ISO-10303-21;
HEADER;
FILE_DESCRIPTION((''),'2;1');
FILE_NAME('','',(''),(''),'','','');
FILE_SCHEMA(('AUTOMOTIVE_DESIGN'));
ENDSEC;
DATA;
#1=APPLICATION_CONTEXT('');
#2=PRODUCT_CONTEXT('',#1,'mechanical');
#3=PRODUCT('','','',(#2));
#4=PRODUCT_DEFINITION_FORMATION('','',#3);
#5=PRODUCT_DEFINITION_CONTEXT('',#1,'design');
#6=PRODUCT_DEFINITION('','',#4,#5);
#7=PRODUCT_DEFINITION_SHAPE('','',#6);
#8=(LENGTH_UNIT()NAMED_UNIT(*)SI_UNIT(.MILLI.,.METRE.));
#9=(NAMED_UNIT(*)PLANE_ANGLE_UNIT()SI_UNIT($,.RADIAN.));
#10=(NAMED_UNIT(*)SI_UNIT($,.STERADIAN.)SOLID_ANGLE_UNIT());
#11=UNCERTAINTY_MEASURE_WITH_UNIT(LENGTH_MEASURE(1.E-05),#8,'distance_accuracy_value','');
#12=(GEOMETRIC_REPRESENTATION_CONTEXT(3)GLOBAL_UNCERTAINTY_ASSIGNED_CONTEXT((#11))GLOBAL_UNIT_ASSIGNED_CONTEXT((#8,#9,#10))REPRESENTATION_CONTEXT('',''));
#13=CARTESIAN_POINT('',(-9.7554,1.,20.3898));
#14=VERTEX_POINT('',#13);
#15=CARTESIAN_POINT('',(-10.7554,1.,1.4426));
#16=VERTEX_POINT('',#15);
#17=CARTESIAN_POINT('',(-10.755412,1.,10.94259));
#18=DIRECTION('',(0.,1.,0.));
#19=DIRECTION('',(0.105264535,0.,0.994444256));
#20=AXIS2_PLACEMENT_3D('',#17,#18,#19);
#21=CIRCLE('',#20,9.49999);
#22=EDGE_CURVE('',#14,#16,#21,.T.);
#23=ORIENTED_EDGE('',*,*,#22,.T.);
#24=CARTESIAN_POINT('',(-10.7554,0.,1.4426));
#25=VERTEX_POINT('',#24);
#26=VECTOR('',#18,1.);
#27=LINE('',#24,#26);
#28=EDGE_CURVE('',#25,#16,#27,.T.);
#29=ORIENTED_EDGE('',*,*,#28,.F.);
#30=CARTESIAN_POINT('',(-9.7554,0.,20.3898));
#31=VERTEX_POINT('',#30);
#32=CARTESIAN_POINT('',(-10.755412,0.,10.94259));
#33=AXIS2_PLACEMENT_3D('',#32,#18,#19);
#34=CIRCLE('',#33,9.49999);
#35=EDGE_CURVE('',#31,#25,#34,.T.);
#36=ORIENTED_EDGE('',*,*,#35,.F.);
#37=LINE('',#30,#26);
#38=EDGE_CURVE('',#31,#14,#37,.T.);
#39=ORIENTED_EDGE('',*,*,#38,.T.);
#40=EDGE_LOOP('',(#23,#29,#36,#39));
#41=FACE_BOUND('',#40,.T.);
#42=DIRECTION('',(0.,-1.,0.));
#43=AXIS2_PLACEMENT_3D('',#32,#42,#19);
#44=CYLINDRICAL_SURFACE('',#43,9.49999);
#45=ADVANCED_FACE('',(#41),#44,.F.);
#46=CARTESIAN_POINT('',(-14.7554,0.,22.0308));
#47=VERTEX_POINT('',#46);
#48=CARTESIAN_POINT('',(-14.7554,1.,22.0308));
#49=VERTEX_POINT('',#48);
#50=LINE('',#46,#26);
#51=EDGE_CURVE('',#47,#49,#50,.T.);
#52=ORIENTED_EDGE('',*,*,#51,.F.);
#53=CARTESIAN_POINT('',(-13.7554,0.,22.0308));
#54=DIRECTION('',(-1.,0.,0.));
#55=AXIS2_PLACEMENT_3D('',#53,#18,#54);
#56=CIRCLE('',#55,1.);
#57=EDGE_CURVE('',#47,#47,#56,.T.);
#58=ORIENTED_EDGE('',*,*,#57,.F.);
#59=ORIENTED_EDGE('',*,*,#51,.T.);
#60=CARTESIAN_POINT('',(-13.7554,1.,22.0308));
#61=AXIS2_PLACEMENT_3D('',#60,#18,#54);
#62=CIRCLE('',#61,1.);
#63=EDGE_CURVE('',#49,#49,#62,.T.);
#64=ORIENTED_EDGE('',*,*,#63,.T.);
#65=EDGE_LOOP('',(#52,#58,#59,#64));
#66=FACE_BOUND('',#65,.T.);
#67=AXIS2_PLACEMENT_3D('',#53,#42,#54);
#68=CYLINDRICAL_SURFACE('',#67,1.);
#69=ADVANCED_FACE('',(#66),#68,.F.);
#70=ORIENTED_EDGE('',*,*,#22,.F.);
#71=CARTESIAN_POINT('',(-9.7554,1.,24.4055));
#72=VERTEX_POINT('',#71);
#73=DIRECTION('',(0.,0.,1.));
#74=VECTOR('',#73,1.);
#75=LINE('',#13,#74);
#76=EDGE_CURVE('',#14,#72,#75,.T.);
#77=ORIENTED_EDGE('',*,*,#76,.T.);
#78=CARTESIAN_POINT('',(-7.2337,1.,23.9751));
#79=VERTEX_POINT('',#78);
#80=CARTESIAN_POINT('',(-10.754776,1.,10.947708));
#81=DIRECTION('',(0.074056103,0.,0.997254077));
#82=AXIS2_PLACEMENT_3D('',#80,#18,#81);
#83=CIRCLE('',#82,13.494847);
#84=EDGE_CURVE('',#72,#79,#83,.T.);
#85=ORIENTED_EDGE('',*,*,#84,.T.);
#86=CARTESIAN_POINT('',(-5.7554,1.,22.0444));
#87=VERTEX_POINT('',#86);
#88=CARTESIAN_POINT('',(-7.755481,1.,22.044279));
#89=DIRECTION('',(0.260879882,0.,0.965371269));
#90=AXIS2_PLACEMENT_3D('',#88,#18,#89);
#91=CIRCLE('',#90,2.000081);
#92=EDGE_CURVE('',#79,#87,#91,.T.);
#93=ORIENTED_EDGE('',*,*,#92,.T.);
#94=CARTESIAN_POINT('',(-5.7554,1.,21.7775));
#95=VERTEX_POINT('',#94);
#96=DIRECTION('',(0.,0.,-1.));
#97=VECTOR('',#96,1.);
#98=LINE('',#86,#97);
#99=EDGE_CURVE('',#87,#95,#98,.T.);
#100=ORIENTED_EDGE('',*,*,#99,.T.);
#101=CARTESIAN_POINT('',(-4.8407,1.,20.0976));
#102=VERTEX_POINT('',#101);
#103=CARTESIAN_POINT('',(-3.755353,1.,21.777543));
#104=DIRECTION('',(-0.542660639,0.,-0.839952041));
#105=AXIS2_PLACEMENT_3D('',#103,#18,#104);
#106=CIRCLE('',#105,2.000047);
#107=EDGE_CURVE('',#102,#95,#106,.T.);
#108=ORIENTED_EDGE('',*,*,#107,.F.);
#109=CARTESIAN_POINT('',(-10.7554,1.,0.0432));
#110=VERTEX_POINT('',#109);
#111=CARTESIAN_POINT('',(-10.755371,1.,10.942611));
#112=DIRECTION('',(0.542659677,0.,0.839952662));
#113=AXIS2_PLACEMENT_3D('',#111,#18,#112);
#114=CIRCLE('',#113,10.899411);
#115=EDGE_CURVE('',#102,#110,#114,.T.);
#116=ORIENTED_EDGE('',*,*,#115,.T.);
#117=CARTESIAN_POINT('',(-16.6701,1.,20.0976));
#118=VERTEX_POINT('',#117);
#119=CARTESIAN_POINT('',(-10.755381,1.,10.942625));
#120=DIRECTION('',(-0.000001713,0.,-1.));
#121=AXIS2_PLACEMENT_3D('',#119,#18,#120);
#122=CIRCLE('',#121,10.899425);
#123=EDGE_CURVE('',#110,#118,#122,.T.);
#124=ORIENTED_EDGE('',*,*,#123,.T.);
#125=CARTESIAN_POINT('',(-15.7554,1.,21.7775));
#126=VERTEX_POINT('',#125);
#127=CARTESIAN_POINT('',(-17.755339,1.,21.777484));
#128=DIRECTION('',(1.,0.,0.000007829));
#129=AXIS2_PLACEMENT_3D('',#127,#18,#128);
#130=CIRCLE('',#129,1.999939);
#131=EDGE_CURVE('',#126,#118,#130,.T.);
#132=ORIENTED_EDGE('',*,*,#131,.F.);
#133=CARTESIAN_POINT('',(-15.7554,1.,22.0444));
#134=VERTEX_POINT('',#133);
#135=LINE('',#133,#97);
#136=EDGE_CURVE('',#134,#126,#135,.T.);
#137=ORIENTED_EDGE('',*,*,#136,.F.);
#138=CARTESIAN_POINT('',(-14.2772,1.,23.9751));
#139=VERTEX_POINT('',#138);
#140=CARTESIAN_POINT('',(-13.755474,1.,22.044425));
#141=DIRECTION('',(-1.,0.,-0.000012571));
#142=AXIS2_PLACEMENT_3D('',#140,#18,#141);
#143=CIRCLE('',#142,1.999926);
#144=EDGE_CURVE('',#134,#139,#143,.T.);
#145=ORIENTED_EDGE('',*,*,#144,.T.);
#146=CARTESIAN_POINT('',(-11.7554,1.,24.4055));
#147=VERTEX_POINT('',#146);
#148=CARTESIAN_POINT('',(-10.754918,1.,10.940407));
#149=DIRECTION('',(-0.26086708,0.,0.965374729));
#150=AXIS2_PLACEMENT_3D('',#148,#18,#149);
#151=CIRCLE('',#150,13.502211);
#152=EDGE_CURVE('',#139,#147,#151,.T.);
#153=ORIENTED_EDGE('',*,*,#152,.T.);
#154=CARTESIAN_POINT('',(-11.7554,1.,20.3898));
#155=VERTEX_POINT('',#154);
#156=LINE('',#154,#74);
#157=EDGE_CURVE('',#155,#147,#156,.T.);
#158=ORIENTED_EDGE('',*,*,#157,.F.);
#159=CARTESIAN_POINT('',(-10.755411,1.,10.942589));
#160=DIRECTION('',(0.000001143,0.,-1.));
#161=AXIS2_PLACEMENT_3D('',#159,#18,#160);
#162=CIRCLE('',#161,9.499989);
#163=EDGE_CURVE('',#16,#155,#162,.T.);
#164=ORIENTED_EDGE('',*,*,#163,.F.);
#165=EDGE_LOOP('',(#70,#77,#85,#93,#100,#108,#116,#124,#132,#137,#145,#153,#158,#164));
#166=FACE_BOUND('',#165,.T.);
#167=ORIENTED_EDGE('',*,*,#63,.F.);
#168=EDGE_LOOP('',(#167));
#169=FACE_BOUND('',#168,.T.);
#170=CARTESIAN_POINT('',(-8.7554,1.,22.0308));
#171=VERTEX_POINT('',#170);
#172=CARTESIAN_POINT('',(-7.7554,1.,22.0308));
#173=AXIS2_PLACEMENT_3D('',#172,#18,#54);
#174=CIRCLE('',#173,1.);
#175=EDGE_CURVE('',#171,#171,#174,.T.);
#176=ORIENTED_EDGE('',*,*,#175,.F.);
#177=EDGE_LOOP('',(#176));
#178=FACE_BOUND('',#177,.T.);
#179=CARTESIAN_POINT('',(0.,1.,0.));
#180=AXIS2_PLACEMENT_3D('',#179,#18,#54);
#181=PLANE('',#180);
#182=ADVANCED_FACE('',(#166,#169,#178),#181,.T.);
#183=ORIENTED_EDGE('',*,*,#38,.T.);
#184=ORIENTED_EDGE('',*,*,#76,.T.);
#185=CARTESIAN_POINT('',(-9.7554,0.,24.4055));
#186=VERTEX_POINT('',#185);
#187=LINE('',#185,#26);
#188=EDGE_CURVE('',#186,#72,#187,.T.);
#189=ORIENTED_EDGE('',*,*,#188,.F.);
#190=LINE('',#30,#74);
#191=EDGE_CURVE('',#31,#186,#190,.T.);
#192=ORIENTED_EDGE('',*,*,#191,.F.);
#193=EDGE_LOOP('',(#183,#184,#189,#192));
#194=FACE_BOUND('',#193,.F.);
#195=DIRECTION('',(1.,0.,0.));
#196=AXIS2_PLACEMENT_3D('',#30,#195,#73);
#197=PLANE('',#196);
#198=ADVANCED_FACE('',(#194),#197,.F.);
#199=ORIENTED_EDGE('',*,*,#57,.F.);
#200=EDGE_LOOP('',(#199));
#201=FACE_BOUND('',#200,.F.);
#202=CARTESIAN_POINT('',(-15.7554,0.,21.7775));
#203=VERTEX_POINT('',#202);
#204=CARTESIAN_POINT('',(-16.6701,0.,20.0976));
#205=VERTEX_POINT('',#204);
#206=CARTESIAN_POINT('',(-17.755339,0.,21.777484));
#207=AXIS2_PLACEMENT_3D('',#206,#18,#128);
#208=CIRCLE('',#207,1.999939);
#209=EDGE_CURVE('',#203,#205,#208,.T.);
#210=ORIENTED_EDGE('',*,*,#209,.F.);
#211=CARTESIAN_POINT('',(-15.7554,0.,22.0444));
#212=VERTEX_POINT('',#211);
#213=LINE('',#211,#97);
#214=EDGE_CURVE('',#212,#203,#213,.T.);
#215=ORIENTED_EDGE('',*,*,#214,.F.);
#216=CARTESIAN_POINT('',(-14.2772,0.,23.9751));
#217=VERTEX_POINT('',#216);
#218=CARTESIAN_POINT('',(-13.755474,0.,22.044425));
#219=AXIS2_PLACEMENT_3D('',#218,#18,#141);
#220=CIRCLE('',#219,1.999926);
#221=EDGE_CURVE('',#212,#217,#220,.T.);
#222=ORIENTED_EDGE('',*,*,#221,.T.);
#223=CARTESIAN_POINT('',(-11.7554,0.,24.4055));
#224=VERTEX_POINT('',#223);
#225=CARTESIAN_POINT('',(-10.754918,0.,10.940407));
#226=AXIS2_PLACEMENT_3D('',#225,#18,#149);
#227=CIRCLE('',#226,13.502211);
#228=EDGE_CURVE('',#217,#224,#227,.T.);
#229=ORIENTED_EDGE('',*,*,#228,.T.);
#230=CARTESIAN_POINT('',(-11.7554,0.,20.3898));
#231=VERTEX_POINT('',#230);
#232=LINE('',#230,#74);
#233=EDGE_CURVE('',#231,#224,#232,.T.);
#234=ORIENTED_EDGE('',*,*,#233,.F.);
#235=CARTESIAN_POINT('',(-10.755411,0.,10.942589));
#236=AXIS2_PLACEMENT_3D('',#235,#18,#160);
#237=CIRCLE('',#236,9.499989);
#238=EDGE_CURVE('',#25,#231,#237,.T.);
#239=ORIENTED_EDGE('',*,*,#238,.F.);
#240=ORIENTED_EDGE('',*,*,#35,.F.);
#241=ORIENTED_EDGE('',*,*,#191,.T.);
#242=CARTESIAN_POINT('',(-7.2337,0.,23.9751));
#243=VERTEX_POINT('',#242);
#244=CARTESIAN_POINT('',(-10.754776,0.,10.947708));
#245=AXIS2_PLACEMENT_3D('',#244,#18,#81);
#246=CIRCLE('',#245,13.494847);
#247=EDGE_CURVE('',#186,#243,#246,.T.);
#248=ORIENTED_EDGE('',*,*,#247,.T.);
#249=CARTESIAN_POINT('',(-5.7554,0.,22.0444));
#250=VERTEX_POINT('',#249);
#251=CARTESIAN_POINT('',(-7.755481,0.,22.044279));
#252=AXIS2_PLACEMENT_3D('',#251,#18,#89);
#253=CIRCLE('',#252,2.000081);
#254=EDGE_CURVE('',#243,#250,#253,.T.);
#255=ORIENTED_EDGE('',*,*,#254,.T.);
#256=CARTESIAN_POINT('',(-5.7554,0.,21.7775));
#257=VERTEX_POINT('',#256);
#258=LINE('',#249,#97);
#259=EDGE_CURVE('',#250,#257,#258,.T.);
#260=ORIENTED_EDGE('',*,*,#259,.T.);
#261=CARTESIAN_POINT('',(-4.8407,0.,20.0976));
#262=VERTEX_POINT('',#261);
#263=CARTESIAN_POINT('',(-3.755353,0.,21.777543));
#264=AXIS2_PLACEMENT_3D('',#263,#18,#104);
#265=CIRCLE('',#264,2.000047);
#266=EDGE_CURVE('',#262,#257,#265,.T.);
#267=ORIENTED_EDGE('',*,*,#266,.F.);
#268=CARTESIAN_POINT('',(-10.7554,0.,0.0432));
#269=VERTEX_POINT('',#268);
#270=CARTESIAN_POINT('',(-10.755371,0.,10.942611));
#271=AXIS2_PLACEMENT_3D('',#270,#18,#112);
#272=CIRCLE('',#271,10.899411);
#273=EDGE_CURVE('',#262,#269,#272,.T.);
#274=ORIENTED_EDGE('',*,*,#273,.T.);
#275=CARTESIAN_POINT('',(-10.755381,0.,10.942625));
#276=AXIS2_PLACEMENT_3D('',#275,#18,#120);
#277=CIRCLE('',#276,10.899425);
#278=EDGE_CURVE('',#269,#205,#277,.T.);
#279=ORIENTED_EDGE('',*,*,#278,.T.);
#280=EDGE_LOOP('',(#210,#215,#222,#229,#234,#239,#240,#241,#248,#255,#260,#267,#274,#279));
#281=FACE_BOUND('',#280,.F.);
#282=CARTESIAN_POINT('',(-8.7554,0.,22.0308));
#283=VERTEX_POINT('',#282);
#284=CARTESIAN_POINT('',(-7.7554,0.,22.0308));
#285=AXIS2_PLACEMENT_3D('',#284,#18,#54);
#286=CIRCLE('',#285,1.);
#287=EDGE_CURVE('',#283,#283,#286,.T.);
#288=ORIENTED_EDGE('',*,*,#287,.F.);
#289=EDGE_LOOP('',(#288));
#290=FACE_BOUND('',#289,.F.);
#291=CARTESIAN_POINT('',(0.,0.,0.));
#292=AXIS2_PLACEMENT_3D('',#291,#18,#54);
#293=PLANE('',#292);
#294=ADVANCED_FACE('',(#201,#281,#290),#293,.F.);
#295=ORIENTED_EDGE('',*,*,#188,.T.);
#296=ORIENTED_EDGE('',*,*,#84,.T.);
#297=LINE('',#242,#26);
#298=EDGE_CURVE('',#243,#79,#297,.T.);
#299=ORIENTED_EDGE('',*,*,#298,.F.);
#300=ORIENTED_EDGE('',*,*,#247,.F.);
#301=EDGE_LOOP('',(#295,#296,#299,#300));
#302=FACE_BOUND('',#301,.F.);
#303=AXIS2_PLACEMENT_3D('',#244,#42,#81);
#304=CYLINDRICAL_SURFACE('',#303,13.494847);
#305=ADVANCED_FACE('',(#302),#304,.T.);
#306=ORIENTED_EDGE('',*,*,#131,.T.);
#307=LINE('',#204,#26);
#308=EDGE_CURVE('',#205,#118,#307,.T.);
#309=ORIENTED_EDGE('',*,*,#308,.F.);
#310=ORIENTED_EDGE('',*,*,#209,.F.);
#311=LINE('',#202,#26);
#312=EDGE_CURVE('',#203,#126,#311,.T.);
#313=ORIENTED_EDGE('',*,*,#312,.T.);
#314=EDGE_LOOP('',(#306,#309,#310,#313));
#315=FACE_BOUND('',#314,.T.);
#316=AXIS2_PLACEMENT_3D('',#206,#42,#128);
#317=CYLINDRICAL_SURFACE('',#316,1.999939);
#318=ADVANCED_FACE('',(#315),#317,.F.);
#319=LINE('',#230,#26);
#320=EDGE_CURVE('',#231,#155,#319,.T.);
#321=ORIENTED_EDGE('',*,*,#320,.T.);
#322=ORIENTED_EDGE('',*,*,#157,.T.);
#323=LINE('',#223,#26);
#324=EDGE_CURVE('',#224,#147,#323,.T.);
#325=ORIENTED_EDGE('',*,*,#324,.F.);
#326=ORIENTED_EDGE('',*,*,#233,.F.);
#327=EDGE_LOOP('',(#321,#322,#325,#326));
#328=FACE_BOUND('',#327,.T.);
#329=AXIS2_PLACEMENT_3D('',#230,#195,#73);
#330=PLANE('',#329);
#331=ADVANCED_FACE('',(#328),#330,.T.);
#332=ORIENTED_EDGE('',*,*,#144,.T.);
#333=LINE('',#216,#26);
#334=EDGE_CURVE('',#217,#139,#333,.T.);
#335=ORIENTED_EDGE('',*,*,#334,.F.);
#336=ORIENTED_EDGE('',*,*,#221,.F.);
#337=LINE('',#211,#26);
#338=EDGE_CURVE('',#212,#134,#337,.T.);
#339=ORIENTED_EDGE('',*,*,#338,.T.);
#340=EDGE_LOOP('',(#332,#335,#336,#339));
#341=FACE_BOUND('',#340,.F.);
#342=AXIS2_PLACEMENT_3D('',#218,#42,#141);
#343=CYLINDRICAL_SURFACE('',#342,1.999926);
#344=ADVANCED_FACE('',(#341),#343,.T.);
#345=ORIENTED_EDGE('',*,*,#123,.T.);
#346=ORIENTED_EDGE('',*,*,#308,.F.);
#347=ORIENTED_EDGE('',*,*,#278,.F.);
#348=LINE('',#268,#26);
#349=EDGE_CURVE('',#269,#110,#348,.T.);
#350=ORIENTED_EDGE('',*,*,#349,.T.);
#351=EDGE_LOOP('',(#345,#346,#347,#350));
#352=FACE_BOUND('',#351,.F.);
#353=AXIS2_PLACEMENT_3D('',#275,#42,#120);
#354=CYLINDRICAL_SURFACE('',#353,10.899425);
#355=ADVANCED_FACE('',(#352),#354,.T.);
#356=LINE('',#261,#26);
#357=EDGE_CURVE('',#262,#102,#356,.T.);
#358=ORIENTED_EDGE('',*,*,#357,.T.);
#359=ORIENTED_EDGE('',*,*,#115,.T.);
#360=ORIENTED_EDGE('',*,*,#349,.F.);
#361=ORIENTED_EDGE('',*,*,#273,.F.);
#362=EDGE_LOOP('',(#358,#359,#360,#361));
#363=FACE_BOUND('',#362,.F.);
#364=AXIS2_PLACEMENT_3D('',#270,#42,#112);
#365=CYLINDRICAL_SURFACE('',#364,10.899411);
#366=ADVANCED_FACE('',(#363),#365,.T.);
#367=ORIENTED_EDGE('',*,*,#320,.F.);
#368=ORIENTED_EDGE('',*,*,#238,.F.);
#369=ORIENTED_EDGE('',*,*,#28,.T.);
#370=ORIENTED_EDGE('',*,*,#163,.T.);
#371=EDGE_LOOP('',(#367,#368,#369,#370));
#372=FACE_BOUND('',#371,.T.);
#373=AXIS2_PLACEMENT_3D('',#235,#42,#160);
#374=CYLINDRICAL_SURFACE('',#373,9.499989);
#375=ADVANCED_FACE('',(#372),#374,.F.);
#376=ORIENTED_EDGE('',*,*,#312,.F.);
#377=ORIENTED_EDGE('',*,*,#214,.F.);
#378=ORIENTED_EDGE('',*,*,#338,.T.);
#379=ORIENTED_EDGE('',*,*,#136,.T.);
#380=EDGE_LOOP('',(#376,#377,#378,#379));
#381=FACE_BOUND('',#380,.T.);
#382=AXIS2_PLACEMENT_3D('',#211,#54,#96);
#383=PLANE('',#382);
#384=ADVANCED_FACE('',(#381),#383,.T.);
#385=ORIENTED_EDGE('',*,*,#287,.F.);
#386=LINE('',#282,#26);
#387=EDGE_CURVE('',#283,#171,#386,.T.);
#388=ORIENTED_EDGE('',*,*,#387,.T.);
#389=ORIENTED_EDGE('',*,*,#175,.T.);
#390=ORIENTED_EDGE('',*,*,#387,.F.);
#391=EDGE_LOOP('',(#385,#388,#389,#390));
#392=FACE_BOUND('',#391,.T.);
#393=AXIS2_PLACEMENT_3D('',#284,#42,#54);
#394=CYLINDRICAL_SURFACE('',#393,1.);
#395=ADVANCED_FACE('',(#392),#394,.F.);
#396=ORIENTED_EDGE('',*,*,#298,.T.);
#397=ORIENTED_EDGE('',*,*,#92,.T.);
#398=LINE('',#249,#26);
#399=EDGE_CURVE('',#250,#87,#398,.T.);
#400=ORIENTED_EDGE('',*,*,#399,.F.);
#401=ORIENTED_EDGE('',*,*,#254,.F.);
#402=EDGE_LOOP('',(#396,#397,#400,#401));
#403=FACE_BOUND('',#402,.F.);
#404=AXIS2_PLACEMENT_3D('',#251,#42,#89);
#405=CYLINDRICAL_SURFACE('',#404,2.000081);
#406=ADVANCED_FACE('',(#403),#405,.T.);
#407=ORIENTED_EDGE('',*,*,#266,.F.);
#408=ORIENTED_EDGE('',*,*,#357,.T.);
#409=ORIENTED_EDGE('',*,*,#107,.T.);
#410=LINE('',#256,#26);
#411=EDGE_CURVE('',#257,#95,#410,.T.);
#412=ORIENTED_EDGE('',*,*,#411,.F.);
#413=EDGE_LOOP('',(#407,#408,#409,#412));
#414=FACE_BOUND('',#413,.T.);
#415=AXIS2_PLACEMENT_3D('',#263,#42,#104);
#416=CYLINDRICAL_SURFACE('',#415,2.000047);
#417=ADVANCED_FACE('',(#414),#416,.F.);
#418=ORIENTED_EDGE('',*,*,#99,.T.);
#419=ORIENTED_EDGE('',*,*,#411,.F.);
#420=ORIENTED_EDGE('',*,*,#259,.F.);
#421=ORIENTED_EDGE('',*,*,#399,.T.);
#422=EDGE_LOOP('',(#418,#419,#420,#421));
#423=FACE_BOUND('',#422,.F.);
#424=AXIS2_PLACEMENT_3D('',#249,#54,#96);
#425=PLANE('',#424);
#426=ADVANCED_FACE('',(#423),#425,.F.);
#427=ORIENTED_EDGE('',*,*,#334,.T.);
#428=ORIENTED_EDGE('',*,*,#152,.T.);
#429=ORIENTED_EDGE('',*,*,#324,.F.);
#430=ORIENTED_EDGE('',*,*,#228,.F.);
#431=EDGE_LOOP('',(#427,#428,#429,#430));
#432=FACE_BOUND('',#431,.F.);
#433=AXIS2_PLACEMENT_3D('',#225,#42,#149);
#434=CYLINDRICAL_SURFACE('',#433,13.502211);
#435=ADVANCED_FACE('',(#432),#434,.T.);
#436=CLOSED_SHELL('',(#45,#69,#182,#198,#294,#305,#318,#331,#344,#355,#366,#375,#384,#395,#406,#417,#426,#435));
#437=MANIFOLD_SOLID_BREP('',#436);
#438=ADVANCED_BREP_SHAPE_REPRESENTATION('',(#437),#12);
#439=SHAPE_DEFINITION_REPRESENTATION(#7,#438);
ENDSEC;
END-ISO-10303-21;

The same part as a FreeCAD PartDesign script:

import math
import FreeCAD as App
import Part
import Sketcher
from FreeCAD import Vector

doc = App.newDocument("Part")
params = doc.addObject("Spreadsheet::Sheet", "Params")
for row, (alias, value) in enumerate([
    ("sketch1_diameter", "2 mm"),
    ("sketch1_radius", "2 mm"),
    ("sketch1_radius2", "9.5 mm"),
    ("pad1_length", "1 mm"),
], start=1):
    params.set(f"A{row}", alias)
    params.set(f"B{row}", "=" + value)
    params.setAlias(f"B{row}", alias)

body = doc.addObject("PartDesign::Body", "Body")

sketch1 = body.newObject("Sketcher::SketchObject", "Sketch")
sketch1.AttachmentSupport = (doc.getObject("XZ_Plane"), [""])
sketch1.MapMode = "FlatFace"
sketch1.addGeometry([
    Part.ArcOfCircle(Part.Circle(Vector(-7.7554, 22.0444, 0), Vector(0, 0, 1), 1.999943), math.radians(0), math.radians(74.879057)),
    Part.LineSegment(Vector(-5.7554, 22.0444, 0), Vector(-5.7554, 21.7775, 0)),
    Part.ArcOfCircle(Part.Circle(Vector(-3.7554, 21.7775, 0), Vector(0, 0, 1), 1.999985), math.radians(180), math.radians(237.135504)),
    Part.ArcOfCircle(Part.Circle(Vector(-10.7554, 10.9426, 0), Vector(0, 0, 1), 10.8994), math.radians(-90), math.radians(57.135023)),
    Part.ArcOfCircle(Part.Circle(Vector(-10.7554, 10.9426, 0), Vector(0, 0, 1), 10.899436), math.radians(122.864977), math.radians(270)),
    Part.ArcOfCircle(Part.Circle(Vector(-17.7554, 21.7775, 0), Vector(0, 0, 1), 2), math.radians(-57.135504), math.radians(0)),
    Part.LineSegment(Vector(-15.7554, 21.7775, 0), Vector(-15.7554, 22.0444, 0)),
    Part.ArcOfCircle(Part.Circle(Vector(-13.7554, 22.0444, 0), Vector(0, 0, 1), 2), math.radians(105.123708), math.radians(180)),
    Part.ArcOfCircle(Part.Circle(Vector(-10.754918, 10.940407, 0), Vector(0, 0, 1), 13.502211), math.radians(94.249378), math.radians(105.121518)),
    Part.LineSegment(Vector(-11.7554, 24.4055, 0), Vector(-11.7554, 20.3898, 0)),
    Part.ArcOfCircle(Part.Circle(Vector(-10.7554, 10.9426, 0), Vector(0, 0, 1), 9.499978), math.radians(96.042342), math.radians(270)),
    Part.ArcOfCircle(Part.Circle(Vector(-10.7554, 10.9426, 0), Vector(0, 0, 1), 9.5), math.radians(-90), math.radians(83.957658)),
    Part.LineSegment(Vector(-9.7554, 20.3898, 0), Vector(-9.7554, 24.4055, 0)),
    Part.ArcOfCircle(Part.Circle(Vector(-10.754776, 10.947708, 0), Vector(0, 0, 1), 13.494847), math.radians(74.87534), math.radians(85.75301)),
    Part.Circle(Vector(-7.7554, 22.0308, 0), Vector(0, 0, 1), 1),
    Part.Circle(Vector(-13.7554, 22.0308, 0), Vector(0, 0, 1), 1),
], False)
sketch1.addConstraint([
    Sketcher.Constraint("Tangent", 0, 1, 1, 1),
    Sketcher.Constraint("Tangent", 1, 2, 2, 1),
    Sketcher.Constraint("Tangent", 2, 2, 3, 2),
    Sketcher.Constraint("Tangent", 3, 1, 4, 2),
    Sketcher.Constraint("Tangent", 4, 1, 5, 1),
    Sketcher.Constraint("Tangent", 5, 2, 6, 1),
    Sketcher.Constraint("Tangent", 6, 2, 7, 2),
    Sketcher.Constraint("Tangent", 7, 1, 8, 2),
    Sketcher.Constraint("Coincident", 8, 1, 9, 1),
    Sketcher.Constraint("Coincident", 9, 2, 10, 1),
    Sketcher.Constraint("Tangent", 10, 2, 11, 1),
    Sketcher.Constraint("Coincident", 11, 2, 12, 1),
    Sketcher.Constraint("Coincident", 12, 2, 13, 2),
    Sketcher.Constraint("Tangent", 13, 1, 0, 2),
    Sketcher.Constraint("Vertical", 1),
    Sketcher.Constraint("Vertical", 6),
    Sketcher.Constraint("Vertical", 9),
    Sketcher.Constraint("Vertical", 12),
    Sketcher.Constraint("Coincident", 10, 3, 3, 3),
    Sketcher.Constraint("Equal", 0, 2),
    Sketcher.Constraint("Equal", 3, 4),
    Sketcher.Constraint("Equal", 2, 5),
    Sketcher.Constraint("Equal", 5, 7),
    Sketcher.Constraint("Equal", 10, 11),
    Sketcher.Constraint("Equal", 14, 15),
    Sketcher.Constraint("Horizontal", 2, 3, 5, 3),
    Sketcher.Constraint("Horizontal", 0, 3, 7, 3),
    Sketcher.Constraint("Horizontal", 14, 3, 15, 3),
    Sketcher.Constraint("Horizontal", 9, 2, 11, 2),
    Sketcher.Constraint("Horizontal", 8, 1, 12, 2),
    Sketcher.Constraint("Vertical", 8, 3, 13, 3),
    Sketcher.Constraint("Vertical", 0, 3, 14, 3),
    Sketcher.Constraint("Vertical", 7, 3, 15, 3),
    Sketcher.Constraint("Vertical", 11, 3, 3, 1),
    Sketcher.Constraint("Vertical", 3, 1, 10, 2),
    Sketcher.Constraint("Diameter", 14, 2.0),
    Sketcher.Constraint("Radius", 0, 2.0),
    Sketcher.Constraint("Radius", 10, 9.5),
    Sketcher.Constraint("DistanceX", 7, 3, 0, 3, 6.0),
    Sketcher.Constraint("DistanceX", 7, 3, 8, 1, 2.0),
    Sketcher.Constraint("Radius", 3, 10.8994),
    Sketcher.Constraint("Radius", 8, 13.5022),
    Sketcher.Constraint("Radius", 13, 13.4948),
    Sketcher.Constraint("DistanceY", 1, 2, 1, 1, 0.267),
    Sketcher.Constraint("DistanceX", 4, 1, -1, 1, 16.67),
    Sketcher.Constraint("DistanceY", -1, 1, 13, 1, 23.975),
    Sketcher.Constraint("DistanceY", 13, 3, 14, 3, 11.083),
])
sketch1.setExpression("Constraints[35]", "Params.sketch1_diameter")
sketch1.setExpression("Constraints[36]", "Params.sketch1_radius")
sketch1.setExpression("Constraints[37]", "Params.sketch1_radius2")
pad1 = body.newObject("PartDesign::Pad", "Pad")
pad1.Profile = sketch1
pad1.setExpression("Length", "Params.pad1_length")
pad1.Reversed = True

doc.recompute()
